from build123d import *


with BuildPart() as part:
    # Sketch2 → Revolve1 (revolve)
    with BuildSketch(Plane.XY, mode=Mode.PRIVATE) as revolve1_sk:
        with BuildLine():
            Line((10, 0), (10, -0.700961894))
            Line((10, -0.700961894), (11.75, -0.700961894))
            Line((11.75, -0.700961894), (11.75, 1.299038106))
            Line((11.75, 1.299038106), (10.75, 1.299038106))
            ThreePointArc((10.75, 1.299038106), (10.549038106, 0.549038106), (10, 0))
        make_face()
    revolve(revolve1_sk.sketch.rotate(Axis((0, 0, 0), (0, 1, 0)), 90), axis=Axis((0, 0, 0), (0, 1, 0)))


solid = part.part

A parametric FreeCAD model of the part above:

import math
import FreeCAD as App
import Part
import Sketcher
Q = App.Units.Quantity

doc = App.newDocument("Part")
body = doc.addObject("PartDesign::Body", "Body")

# Sketch on XY plane
sketch1 = doc.addObject("Sketcher::SketchObject", "Sketch")
body.addObject(sketch1)
sketch1.AttachmentSupport = (doc.XY_Plane, [""])
sketch1.MapMode = "FlatFace"
sketch1.addGeometry([
    Part.LineSegment(App.Vector(10, 0, 0), App.Vector(10, -0.7, 0)),  # 0
    Part.LineSegment(App.Vector(10, -0.7, 0), App.Vector(11.8, -0.7, 0)),  # 1
    Part.LineSegment(App.Vector(11.8, -0.7, 0), App.Vector(11.8, 1.3, 0)),  # 2
    Part.LineSegment(App.Vector(11.8, 1.3, 0), App.Vector(10.8, 1.3, 0)),  # 3
    Part.ArcOfCircle(Part.Circle(App.Vector(9.3, 1.3, 0), App.Vector(0, 0, 1), 1.5), math.radians(-60), math.radians(0)),  # 4
], False)
sketch1.addConstraint([
    Sketcher.Constraint("Coincident", 0, 2, 1, 1),
    Sketcher.Constraint("Coincident", 1, 2, 2, 1),
    Sketcher.Constraint("Coincident", 2, 2, 3, 1),
    Sketcher.Constraint("Coincident", 3, 2, 4, 2),
    Sketcher.Constraint("Coincident", 4, 1, 0, 1),
    Sketcher.Constraint("Vertical", 0),
    Sketcher.Constraint("Horizontal", 1),
    Sketcher.Constraint("Vertical", 2),
    Sketcher.Constraint("Horizontal", 3),
    Sketcher.Constraint("PointOnObject", 4, 1, -1),
    Sketcher.Constraint("Horizontal", 4, 3, 2, 2),
    Sketcher.Constraint("Radius", 4, Q("1.5 mm")),
    Sketcher.Constraint("DistanceX", 3, 2, 3, 1, Q("1 mm")),
    Sketcher.Constraint("DistanceY", 2, 1, 2, 2, Q("2 mm")),
    Sketcher.Constraint("DistanceX", -1, 1, 0, 2, Q("10 mm")),
    Sketcher.Constraint("DistanceX", 1, 1, 1, 2, Q("1.75 mm")),
])
revolution = doc.addObject("PartDesign::Revolution", "Revolution")
body.addObject(revolution)
revolution.Profile = sketch1
revolution.ReferenceAxis = (sketch1, ["V_Axis"])
revolution.Angle = 360

doc.recompute()
